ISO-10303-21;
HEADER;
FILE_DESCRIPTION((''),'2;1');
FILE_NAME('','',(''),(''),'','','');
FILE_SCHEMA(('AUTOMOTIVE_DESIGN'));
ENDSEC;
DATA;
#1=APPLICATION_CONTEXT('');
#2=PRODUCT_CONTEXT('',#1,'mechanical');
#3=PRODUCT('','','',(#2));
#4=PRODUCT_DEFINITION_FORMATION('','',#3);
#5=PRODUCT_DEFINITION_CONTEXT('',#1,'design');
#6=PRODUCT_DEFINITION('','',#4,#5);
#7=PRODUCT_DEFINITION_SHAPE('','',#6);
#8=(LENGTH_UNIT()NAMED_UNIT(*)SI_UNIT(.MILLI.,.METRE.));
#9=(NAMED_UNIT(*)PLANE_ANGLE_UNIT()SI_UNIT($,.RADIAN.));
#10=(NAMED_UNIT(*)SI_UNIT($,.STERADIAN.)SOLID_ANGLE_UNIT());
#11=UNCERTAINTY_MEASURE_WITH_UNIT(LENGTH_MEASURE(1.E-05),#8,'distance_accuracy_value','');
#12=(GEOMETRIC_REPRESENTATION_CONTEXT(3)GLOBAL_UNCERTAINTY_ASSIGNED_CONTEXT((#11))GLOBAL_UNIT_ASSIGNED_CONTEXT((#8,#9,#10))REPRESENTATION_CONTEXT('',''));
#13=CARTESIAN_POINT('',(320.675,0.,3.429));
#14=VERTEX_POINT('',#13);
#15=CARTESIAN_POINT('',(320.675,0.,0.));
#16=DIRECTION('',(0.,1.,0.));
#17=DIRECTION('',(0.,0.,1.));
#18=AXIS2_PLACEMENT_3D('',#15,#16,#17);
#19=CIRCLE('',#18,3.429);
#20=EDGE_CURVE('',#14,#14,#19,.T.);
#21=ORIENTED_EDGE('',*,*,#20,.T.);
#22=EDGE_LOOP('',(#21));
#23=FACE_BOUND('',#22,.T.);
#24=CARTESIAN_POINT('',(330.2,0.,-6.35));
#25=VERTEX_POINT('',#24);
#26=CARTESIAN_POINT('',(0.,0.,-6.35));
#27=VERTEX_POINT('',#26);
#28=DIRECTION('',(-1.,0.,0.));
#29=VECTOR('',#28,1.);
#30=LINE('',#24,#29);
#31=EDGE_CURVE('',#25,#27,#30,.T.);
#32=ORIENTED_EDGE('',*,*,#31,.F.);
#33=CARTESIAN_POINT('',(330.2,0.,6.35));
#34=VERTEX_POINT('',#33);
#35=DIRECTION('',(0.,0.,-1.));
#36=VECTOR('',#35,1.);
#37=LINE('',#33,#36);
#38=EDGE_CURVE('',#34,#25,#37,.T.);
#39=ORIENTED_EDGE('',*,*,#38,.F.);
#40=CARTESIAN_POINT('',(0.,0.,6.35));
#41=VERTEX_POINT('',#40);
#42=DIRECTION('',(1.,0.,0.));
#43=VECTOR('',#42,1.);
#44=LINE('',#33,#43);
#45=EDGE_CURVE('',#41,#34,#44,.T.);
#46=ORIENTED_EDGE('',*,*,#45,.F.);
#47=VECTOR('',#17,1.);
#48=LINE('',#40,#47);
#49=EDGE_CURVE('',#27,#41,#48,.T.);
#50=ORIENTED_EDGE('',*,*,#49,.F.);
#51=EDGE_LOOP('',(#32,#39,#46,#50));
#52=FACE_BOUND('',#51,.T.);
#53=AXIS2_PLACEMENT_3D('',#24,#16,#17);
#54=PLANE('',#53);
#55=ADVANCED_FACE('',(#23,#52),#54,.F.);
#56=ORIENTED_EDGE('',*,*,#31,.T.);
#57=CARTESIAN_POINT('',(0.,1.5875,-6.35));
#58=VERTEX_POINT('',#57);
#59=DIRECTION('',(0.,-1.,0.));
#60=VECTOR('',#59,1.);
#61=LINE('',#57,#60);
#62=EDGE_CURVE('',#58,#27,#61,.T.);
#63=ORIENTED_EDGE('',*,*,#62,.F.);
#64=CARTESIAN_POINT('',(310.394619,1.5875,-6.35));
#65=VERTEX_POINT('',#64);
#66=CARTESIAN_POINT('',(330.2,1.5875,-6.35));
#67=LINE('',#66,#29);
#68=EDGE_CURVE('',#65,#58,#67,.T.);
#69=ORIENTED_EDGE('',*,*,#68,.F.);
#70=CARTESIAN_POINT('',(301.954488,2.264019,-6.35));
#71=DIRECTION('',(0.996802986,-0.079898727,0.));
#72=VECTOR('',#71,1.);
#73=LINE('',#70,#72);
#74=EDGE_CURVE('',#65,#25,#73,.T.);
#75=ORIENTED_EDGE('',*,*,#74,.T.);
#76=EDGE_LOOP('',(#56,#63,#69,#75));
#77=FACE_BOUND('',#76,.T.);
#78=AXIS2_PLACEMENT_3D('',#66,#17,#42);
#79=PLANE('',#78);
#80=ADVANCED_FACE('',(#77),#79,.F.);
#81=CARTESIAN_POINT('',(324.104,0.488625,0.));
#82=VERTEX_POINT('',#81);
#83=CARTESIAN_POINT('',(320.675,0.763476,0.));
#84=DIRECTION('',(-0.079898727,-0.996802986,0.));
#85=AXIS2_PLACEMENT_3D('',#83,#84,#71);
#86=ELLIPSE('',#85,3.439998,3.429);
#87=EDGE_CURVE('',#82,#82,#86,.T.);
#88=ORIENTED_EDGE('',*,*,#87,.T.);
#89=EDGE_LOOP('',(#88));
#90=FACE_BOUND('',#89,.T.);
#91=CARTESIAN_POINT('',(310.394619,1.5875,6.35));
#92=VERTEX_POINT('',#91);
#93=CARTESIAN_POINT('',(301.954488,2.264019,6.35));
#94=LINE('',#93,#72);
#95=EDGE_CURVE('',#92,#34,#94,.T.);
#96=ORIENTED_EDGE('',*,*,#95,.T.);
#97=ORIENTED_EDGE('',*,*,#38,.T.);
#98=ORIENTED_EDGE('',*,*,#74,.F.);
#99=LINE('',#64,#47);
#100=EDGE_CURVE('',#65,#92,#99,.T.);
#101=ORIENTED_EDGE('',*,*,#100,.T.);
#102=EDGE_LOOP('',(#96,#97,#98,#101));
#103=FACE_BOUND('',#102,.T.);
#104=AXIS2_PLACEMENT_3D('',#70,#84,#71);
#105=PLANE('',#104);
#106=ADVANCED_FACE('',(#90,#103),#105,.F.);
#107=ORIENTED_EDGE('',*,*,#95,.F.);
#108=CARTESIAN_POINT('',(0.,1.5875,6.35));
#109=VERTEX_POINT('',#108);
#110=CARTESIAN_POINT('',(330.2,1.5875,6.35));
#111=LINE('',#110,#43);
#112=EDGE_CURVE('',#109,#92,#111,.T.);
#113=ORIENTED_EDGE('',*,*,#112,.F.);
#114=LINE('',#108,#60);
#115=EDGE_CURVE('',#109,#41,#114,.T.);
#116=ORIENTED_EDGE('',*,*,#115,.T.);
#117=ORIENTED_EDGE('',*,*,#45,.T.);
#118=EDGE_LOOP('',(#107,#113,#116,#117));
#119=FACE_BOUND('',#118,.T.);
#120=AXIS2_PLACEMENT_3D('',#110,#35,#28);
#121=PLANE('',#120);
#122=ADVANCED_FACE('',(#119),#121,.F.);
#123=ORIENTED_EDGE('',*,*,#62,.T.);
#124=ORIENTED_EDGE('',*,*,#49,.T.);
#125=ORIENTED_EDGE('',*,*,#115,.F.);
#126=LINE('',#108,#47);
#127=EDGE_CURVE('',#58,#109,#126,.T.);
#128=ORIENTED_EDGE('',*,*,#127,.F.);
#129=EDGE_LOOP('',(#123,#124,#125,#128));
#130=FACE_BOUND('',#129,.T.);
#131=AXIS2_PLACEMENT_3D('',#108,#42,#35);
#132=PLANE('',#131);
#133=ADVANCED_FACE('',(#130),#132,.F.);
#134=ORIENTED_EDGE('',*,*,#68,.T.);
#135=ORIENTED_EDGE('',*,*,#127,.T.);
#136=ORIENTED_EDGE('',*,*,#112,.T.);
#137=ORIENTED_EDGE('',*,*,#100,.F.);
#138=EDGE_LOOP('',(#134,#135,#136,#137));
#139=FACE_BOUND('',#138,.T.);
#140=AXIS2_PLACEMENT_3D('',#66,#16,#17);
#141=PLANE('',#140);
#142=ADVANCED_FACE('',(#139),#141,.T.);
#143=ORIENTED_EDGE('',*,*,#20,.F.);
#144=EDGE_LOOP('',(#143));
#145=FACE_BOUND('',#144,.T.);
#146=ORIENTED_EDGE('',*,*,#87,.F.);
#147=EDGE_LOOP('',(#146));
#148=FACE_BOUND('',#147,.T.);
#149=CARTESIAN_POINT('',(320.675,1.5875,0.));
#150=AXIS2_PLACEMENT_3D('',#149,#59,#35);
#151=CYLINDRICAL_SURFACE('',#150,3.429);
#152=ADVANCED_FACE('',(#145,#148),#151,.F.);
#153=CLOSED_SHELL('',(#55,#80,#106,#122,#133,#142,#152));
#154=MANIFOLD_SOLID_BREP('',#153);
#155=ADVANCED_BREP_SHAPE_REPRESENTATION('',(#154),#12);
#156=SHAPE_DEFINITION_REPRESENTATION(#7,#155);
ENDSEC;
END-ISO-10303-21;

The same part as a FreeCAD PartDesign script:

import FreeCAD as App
import Part
import Sketcher
from FreeCAD import Vector
Q = App.Units.Quantity

doc = App.newDocument("Part")
body = doc.addObject("PartDesign::Body", "Body")

# Sketch on XZ plane
sketch1 = body.newObject("Sketcher::SketchObject", "Sketch")
sketch1.AttachmentSupport = (doc.getObject("XZ_Plane"), [""])
sketch1.MapMode = "FlatFace"
sketch1.addGeometry([
    Part.LineSegment(Vector(0, -6.3, 0), Vector(0, 6.3, 0)),  # 0
    Part.LineSegment(Vector(0, 6.3, 0), Vector(330.2, 6.3, 0)),  # 1
    Part.LineSegment(Vector(330.2, 6.3, 0), Vector(330.2, -6.3, 0)),  # 2
    Part.LineSegment(Vector(330.2, -6.3, 0), Vector(0, -6.3, 0)),  # 3
    Part.Circle(Vector(320.7, 0, 0), Vector(0, 0, 1), 3.4),  # 4
], False)
sketch1.addConstraint([
    Sketcher.Constraint("Coincident", 0, 2, 1, 1),
    Sketcher.Constraint("Coincident", 1, 2, 2, 1),
    Sketcher.Constraint("Coincident", 2, 2, 3, 1),
    Sketcher.Constraint("Coincident", 3, 2, 0, 1),
    Sketcher.Constraint("Vertical", 0),
    Sketcher.Constraint("Horizontal", 1),
    Sketcher.Constraint("Vertical", 2),
    Sketcher.Constraint("Horizontal", 3),
    Sketcher.Constraint("Symmetric", 0, 2, 3, 2, -1, 1),
    Sketcher.Constraint("PointOnObject", 4, 3, -1),
    Sketcher.Constraint("Diameter", 4, Q("0.27 in")),
    Sketcher.Constraint("DistanceX", 1, 1, 1, 2, Q("13 in")),
    Sketcher.Constraint("DistanceY", 0, 1, 0, 2, Q("0.5 in")),
    Sketcher.Constraint("DistanceX", -1, 1, 4, 3, Q("12.625 in")),
])
pad1 = body.newObject("PartDesign::Pad", "Pad")
pad1.Profile = sketch1
pad1.Length = Q("0.0625 in")
pad1.Reversed = True

# Sketch on XY plane
sketch2 = body.newObject("Sketcher::SketchObject", "Sketch001")
sketch2.AttachmentSupport = (doc.getObject("XY_Plane"), [""])
sketch2.MapMode = "FlatFace"
sketch2.addGeometry([
    Part.LineSegment(Vector(330.2, 0, 0), Vector(330.2, 2.3, 0)),
    Part.LineSegment(Vector(330.2, 2.3, 0), Vector(302, 2.3, 0)),
    Part.LineSegment(Vector(302, 2.3, 0), Vector(330.2, 0, 0)),
], False)
sketch2.addConstraint([
    Sketcher.Constraint("Coincident", 0, 2, 1, 1),
    Sketcher.Constraint("Coincident", 1, 2, 2, 1),
    Sketcher.Constraint("Coincident", 2, 2, 0, 1),
    Sketcher.Constraint("Vertical", 0),
    Sketcher.Constraint("Horizontal", 1),
    Sketcher.Constraint("PointOnObject", 2, 2, -1),
    Sketcher.Constraint("DistanceX", -1, 1, 0, 2, Q("13 in")),
    Sketcher.Constraint("DistanceY", 0, 1, 0, 2, 2.264019),
    Sketcher.Constraint("DistanceX", 1, 2, 1, 1, 28.245512),
])
pocket1 = body.newObject("PartDesign::Pocket", "Pocket")
pocket1.Profile = sketch2
pocket1.Type = "ThroughAll"
pocket1.Midplane = True

doc.recompute()
